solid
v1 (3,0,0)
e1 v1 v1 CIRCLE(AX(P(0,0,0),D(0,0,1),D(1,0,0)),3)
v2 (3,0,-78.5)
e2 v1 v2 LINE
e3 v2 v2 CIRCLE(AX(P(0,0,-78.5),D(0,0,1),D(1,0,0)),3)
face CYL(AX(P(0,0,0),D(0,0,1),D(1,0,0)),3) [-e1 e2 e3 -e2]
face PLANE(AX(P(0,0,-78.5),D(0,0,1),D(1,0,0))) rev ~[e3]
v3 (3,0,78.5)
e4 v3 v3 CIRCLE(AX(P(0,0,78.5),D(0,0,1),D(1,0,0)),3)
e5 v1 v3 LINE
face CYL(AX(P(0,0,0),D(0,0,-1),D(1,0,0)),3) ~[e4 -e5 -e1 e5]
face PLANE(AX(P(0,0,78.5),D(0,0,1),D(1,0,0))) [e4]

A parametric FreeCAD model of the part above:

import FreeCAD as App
import Part
import Sketcher
from FreeCAD import Vector
Q = App.Units.Quantity

doc = App.newDocument("Part")
params = doc.addObject("Spreadsheet::Sheet", "Params")
for row, (alias, value) in enumerate([
    ("sketch1_diameter", "6 mm"),
    ("pad1_length", "157 mm"),
], start=1):
    params.set(f"A{row}", alias)
    params.set(f"B{row}", "=" + value)
    params.setAlias(f"B{row}", alias)

body = doc.addObject("PartDesign::Body", "Body")

# Sketch on XY plane
sketch1 = body.newObject("Sketcher::SketchObject", "Sketch")
sketch1.AttachmentSupport = (doc.getObject("XY_Plane"), [""])
sketch1.MapMode = "FlatFace"
sketch1.addGeometry(Part.Circle(Vector(0, 0, 0), Vector(0, 0, 1), 3), False)
sketch1.addConstraint([
    Sketcher.Constraint("Coincident", 0, 3, -1, 1),
    Sketcher.Constraint("Diameter", 0, Q("6 mm")),
])
sketch1.setExpression("Constraints[1]", "Params.sketch1_diameter")
pad1 = body.newObject("PartDesign::Pad", "Pad")
pad1.Profile = sketch1
pad1.setExpression("Length", "Params.pad1_length")
pad1.Midplane = True

doc.recompute()
